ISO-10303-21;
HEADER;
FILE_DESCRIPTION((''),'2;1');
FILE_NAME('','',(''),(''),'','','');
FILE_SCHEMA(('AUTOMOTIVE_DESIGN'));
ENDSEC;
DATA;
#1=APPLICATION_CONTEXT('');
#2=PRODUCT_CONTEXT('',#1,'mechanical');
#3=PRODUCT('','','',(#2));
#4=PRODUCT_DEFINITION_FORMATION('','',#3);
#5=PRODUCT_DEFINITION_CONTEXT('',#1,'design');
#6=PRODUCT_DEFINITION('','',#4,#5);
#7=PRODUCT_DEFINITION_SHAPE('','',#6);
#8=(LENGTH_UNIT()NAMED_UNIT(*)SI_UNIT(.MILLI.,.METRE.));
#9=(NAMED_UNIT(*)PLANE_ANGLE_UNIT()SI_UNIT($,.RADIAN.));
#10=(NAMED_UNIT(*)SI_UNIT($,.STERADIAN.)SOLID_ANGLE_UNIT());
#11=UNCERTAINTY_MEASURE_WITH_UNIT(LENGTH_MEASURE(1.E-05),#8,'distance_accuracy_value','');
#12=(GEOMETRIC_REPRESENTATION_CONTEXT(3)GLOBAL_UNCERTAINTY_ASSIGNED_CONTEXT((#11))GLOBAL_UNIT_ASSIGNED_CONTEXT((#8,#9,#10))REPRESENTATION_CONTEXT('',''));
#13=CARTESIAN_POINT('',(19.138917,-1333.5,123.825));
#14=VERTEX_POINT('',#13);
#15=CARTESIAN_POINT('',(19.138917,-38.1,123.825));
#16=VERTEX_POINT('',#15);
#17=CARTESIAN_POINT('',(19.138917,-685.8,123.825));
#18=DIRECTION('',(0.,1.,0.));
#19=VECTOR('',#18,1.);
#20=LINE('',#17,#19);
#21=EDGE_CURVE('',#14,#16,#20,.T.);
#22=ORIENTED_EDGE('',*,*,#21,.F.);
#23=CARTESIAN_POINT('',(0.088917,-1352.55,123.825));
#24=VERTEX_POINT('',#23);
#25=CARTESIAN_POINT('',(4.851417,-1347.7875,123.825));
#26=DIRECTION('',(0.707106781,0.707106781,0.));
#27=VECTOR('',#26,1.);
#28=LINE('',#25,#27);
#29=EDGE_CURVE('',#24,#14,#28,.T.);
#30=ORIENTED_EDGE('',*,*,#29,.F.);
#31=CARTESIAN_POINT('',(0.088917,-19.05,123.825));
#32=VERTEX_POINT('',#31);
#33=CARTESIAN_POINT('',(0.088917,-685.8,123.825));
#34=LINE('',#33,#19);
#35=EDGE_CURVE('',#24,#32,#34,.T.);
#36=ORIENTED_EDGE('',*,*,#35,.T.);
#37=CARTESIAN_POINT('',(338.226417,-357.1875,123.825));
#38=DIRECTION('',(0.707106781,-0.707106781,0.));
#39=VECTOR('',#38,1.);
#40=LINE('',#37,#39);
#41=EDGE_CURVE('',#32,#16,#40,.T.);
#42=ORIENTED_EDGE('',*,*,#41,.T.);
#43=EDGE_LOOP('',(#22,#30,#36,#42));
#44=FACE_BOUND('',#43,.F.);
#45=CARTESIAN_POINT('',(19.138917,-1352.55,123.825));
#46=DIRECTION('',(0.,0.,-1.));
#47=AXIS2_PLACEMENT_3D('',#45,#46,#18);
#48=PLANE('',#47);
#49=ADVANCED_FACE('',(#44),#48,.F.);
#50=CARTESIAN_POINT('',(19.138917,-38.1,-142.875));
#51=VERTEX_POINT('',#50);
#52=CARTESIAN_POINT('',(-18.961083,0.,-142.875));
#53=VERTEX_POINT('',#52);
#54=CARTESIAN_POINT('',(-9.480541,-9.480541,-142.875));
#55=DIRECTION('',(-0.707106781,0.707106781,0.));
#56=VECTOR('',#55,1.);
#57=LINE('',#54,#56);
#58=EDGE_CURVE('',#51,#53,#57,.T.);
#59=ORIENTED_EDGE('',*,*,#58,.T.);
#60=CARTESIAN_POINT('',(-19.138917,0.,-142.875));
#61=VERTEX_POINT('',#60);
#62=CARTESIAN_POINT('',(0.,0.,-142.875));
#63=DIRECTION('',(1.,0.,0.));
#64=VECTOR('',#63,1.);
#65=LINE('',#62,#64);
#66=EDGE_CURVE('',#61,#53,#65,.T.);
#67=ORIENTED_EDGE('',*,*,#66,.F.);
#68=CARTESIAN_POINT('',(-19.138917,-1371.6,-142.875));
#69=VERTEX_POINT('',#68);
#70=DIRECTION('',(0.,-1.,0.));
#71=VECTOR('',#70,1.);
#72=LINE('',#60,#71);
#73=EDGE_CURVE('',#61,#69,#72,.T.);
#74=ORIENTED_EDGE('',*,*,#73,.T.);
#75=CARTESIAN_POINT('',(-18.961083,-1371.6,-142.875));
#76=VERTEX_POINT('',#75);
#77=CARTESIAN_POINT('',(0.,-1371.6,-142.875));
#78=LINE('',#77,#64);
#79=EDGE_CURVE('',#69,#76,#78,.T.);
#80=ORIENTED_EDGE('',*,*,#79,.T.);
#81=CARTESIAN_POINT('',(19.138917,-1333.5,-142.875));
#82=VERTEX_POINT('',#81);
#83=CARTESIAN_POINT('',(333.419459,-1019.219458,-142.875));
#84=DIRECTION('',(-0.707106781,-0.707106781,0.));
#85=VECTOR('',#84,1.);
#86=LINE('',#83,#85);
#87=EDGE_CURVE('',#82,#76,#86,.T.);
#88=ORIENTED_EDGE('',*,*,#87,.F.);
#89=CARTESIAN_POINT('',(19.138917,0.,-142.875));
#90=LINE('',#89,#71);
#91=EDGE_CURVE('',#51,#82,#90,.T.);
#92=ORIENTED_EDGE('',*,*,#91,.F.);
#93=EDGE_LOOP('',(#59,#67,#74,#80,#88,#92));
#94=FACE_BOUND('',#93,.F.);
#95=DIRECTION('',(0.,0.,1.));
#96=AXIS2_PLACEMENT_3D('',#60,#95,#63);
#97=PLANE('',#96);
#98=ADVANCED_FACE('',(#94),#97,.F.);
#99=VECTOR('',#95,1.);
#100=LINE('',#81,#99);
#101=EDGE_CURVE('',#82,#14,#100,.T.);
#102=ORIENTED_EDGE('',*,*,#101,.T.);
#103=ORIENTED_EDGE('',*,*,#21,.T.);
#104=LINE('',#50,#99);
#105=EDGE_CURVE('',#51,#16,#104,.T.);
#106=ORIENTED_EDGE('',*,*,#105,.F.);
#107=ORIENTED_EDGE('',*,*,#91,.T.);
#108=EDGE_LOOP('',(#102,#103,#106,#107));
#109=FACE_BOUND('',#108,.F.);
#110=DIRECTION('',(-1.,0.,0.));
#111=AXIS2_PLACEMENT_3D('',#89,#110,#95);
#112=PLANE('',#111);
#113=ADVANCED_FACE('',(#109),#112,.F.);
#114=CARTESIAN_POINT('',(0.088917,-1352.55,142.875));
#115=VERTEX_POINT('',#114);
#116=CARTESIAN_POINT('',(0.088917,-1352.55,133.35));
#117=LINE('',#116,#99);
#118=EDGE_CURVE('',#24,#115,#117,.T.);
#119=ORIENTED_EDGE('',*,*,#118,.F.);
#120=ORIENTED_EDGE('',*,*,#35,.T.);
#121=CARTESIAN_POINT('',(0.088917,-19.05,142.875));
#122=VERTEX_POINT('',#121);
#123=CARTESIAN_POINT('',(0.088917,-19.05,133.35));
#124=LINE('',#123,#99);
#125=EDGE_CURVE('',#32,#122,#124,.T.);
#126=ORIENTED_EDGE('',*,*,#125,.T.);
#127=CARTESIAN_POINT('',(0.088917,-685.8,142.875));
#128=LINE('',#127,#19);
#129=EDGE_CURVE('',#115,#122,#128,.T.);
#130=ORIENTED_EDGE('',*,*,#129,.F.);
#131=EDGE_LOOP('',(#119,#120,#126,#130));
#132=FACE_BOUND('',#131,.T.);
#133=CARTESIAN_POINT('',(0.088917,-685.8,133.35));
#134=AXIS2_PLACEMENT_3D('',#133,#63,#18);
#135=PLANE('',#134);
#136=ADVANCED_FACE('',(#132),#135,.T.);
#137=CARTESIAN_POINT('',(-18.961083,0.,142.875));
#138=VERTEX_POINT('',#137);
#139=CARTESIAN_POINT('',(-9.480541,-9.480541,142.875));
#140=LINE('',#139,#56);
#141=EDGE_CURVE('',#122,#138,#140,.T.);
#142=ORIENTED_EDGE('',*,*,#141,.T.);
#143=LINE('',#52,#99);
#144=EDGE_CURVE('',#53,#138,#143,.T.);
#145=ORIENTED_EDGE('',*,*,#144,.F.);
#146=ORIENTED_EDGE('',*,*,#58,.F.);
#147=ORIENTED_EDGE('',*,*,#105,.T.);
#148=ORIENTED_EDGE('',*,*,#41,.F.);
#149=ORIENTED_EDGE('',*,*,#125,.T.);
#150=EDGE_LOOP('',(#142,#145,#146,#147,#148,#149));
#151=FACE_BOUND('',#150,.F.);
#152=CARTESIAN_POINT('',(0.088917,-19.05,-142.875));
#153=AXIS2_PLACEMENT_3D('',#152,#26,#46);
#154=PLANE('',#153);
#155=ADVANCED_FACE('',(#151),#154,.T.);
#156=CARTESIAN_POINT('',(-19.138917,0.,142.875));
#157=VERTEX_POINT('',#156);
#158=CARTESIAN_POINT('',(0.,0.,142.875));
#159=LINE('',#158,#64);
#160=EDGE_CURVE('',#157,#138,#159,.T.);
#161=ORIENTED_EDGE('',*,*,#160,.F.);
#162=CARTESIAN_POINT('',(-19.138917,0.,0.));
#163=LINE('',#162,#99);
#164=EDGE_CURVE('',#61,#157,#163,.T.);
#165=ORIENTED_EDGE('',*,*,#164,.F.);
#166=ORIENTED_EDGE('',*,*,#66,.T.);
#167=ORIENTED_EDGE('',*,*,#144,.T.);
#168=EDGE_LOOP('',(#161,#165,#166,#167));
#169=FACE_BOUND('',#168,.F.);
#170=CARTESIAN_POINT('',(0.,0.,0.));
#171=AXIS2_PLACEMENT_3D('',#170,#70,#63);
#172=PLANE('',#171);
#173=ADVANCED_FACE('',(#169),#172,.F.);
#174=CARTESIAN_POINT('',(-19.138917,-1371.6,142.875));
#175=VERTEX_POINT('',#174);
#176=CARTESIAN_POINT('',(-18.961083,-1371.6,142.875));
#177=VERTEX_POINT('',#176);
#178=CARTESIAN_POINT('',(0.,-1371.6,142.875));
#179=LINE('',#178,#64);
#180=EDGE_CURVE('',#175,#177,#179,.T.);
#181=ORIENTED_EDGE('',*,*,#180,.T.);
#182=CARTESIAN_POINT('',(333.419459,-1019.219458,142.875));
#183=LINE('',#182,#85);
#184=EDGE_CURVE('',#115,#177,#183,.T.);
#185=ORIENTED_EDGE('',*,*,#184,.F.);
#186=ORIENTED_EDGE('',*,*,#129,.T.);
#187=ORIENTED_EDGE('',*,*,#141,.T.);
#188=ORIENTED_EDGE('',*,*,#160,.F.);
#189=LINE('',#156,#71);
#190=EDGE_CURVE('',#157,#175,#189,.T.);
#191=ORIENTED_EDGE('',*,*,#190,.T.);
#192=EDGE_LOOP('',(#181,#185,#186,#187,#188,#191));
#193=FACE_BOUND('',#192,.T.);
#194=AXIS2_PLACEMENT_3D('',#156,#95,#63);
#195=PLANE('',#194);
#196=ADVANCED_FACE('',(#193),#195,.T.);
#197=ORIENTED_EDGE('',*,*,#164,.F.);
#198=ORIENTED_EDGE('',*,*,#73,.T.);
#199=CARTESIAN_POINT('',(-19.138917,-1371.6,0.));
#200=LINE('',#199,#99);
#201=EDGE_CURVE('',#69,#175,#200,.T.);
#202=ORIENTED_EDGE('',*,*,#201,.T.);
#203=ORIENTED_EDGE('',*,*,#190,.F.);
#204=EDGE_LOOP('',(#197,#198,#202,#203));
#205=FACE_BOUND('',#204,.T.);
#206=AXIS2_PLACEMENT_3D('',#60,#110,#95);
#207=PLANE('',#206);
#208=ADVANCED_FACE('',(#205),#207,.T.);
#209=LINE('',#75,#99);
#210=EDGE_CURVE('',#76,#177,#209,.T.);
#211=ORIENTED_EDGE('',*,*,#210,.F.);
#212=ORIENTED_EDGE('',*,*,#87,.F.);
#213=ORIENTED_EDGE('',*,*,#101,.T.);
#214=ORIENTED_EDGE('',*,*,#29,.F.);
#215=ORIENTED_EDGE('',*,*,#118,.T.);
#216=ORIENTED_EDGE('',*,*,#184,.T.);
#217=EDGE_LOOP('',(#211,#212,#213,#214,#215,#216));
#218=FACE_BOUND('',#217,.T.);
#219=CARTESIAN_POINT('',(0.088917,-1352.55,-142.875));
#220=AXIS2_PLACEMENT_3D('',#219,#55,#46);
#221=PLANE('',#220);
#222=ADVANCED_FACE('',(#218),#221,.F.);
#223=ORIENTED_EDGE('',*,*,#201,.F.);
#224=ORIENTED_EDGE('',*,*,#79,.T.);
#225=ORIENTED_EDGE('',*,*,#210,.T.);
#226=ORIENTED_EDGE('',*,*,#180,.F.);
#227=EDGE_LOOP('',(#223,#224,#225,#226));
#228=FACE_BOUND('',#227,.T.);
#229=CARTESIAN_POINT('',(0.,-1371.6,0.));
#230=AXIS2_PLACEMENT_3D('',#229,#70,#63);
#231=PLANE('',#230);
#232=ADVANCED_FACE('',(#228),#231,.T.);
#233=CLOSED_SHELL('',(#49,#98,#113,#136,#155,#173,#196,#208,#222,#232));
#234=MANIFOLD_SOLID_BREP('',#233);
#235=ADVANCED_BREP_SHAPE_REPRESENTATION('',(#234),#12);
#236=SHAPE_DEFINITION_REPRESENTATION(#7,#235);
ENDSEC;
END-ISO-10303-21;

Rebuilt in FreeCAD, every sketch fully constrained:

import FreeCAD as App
import Part
import Sketcher

V = App.Vector
Q = App.Units.Quantity


def edges_at(feature, points):
    """Names of the edges that pass closest to the given points."""
    edges = feature.Shape.Edges
    near = lambda p: min(range(len(edges)), key=lambda i: edges[i].distToShape(Part.Vertex(*p))[0])
    return sorted({f"Edge{near(p) + 1}" for p in points})

doc = App.newDocument("Part")
body = doc.addObject("PartDesign::Body", "Body")

sketch1 = body.newObject("Sketcher::SketchObject", "Sketch")
sketch1.AttachmentSupport = (doc.getObject("XZ_Plane"), [""])
sketch1.MapMode = "FlatFace"
sketch1.addGeometry([
    Part.LineSegment(V(-19, 143, 0), V(-19, -143, 0)),
    Part.LineSegment(V(-19, -143, 0), V(19, -143, 0)),
    Part.LineSegment(V(19, -143, 0), V(19, 143, 0)),
    Part.LineSegment(V(19, 143, 0), V(-19, 143, 0)),
], False)
sketch1.addConstraint([
    Sketcher.Constraint("Coincident", 0, 2, 1, 1),
    Sketcher.Constraint("Coincident", 1, 2, 2, 1),
    Sketcher.Constraint("Coincident", 2, 2, 3, 1),
    Sketcher.Constraint("Coincident", 3, 2, 0, 1),
    Sketcher.Constraint("Vertical", 0),
    Sketcher.Constraint("Horizontal", 1),
    Sketcher.Constraint("Vertical", 2),
    Sketcher.Constraint("Horizontal", 3),
    Sketcher.Constraint("Symmetric", 0, 2, 2, 2, -1, 1),
    Sketcher.Constraint("DistanceY", 0, 2, 0, 1, Q("11.25 in")),
    Sketcher.Constraint("DistanceX", 1, 1, 1, 2, Q("38.277834 mm")),
])
pad1 = body.newObject("PartDesign::Pad", "Pad")
pad1.Profile = sketch1
pad1.Length = Q("54 in")
doc.recompute()

chamfer = body.newObject("PartDesign::Chamfer", "Chamfer")
chamfer.Base = (pad1, edges_at(pad1, [(19.139, -1371.6, 0), (19.139, 0, 0)]))
chamfer.Size = Q("1.5 in")

sketch2 = body.newObject("Sketcher::SketchObject", "Sketch001")
sketch2.AttachmentSupport = (doc.getObject("YZ_Plane"), [""])
sketch2.MapMode = "FlatFace"
sketch2.AttachmentOffset = App.Placement(V(0, 0, 19.138917), App.Rotation())
sketch2.addGeometry([
    Part.LineSegment(V(-1353, 143, 0), V(-1353, 124, 0)),
    Part.LineSegment(V(-1353, 124, 0), V(-19, 124, 0)),
    Part.LineSegment(V(-19, 124, 0), V(-19, 143, 0)),
    Part.LineSegment(V(-19, 143, 0), V(-1353, 143, 0)),
], False)
sketch2.addConstraint([
    Sketcher.Constraint("Coincident", 0, 2, 1, 1),
    Sketcher.Constraint("Coincident", 1, 2, 2, 1),
    Sketcher.Constraint("Coincident", 2, 2, 3, 1),
    Sketcher.Constraint("Coincident", 3, 2, 0, 1),
    Sketcher.Constraint("Vertical", 0),
    Sketcher.Constraint("Horizontal", 1),
    Sketcher.Constraint("Vertical", 2),
    Sketcher.Constraint("Horizontal", 3),
    Sketcher.Constraint("DistanceX", 1, 1, 1, 2, Q("52.5 in")),
    Sketcher.Constraint("DistanceY", 0, 2, 0, 1, Q("0.75 in")),
    Sketcher.Constraint("DistanceX", 0, 2, -1, 1, Q("53.25 in")),
    Sketcher.Constraint("DistanceY", -1, 1, 0, 2, Q("4.875 in")),
])
pocket1 = body.newObject("PartDesign::Pocket", "Pocket")
pocket1.Profile = sketch2
pocket1.Length = Q("0.75 in")

doc.recompute()
